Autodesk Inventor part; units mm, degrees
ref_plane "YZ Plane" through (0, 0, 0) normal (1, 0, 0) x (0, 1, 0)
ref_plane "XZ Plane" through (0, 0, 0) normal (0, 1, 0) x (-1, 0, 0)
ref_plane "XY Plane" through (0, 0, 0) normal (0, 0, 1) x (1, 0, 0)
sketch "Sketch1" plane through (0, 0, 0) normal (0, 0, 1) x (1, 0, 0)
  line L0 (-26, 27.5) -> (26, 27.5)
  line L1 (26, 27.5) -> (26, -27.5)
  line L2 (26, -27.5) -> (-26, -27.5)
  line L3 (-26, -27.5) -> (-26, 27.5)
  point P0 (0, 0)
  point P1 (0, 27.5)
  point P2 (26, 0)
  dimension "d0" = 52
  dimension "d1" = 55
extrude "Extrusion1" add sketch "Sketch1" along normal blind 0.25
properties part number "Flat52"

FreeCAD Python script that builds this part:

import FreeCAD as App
import Part
import Sketcher

V = App.Vector

doc = App.newDocument("Part")
body = doc.addObject("PartDesign::Body", "Body")

# Sketch on XY plane
sketch1 = doc.addObject("Sketcher::SketchObject", "Sketch")
body.addObject(sketch1)
sketch1.AttachmentSupport = (doc.XY_Plane, [""])
sketch1.MapMode = "FlatFace"
sketch1.addGeometry([
    Part.LineSegment(V(26, 28, 0), V(-26, 28, 0)),
    Part.LineSegment(V(-26, 28, 0), V(-26, -28, 0)),
    Part.LineSegment(V(-26, -28, 0), V(26, -28, 0)),
    Part.LineSegment(V(26, -28, 0), V(26, 28, 0)),
], False)
sketch1.addConstraint([
    Sketcher.Constraint("Coincident", 0, 2, 1, 1),
    Sketcher.Constraint("Coincident", 1, 2, 2, 1),
    Sketcher.Constraint("Coincident", 2, 2, 3, 1),
    Sketcher.Constraint("Coincident", 3, 2, 0, 1),
    Sketcher.Constraint("Horizontal", 0),
    Sketcher.Constraint("Vertical", 1),
    Sketcher.Constraint("Horizontal", 2),
    Sketcher.Constraint("Vertical", 3),
    Sketcher.Constraint("Symmetric", 0, 2, 2, 2, -1, 1),
    Sketcher.Constraint("DistanceX", 0, 2, 0, 1, 52.0),
    Sketcher.Constraint("DistanceY", 1, 2, 1, 1, 55.0),
])
pad1 = doc.addObject("PartDesign::Pad", "Pad")
body.addObject(pad1)
pad1.Profile = sketch1
pad1.Length = 0.25

doc.recompute()
